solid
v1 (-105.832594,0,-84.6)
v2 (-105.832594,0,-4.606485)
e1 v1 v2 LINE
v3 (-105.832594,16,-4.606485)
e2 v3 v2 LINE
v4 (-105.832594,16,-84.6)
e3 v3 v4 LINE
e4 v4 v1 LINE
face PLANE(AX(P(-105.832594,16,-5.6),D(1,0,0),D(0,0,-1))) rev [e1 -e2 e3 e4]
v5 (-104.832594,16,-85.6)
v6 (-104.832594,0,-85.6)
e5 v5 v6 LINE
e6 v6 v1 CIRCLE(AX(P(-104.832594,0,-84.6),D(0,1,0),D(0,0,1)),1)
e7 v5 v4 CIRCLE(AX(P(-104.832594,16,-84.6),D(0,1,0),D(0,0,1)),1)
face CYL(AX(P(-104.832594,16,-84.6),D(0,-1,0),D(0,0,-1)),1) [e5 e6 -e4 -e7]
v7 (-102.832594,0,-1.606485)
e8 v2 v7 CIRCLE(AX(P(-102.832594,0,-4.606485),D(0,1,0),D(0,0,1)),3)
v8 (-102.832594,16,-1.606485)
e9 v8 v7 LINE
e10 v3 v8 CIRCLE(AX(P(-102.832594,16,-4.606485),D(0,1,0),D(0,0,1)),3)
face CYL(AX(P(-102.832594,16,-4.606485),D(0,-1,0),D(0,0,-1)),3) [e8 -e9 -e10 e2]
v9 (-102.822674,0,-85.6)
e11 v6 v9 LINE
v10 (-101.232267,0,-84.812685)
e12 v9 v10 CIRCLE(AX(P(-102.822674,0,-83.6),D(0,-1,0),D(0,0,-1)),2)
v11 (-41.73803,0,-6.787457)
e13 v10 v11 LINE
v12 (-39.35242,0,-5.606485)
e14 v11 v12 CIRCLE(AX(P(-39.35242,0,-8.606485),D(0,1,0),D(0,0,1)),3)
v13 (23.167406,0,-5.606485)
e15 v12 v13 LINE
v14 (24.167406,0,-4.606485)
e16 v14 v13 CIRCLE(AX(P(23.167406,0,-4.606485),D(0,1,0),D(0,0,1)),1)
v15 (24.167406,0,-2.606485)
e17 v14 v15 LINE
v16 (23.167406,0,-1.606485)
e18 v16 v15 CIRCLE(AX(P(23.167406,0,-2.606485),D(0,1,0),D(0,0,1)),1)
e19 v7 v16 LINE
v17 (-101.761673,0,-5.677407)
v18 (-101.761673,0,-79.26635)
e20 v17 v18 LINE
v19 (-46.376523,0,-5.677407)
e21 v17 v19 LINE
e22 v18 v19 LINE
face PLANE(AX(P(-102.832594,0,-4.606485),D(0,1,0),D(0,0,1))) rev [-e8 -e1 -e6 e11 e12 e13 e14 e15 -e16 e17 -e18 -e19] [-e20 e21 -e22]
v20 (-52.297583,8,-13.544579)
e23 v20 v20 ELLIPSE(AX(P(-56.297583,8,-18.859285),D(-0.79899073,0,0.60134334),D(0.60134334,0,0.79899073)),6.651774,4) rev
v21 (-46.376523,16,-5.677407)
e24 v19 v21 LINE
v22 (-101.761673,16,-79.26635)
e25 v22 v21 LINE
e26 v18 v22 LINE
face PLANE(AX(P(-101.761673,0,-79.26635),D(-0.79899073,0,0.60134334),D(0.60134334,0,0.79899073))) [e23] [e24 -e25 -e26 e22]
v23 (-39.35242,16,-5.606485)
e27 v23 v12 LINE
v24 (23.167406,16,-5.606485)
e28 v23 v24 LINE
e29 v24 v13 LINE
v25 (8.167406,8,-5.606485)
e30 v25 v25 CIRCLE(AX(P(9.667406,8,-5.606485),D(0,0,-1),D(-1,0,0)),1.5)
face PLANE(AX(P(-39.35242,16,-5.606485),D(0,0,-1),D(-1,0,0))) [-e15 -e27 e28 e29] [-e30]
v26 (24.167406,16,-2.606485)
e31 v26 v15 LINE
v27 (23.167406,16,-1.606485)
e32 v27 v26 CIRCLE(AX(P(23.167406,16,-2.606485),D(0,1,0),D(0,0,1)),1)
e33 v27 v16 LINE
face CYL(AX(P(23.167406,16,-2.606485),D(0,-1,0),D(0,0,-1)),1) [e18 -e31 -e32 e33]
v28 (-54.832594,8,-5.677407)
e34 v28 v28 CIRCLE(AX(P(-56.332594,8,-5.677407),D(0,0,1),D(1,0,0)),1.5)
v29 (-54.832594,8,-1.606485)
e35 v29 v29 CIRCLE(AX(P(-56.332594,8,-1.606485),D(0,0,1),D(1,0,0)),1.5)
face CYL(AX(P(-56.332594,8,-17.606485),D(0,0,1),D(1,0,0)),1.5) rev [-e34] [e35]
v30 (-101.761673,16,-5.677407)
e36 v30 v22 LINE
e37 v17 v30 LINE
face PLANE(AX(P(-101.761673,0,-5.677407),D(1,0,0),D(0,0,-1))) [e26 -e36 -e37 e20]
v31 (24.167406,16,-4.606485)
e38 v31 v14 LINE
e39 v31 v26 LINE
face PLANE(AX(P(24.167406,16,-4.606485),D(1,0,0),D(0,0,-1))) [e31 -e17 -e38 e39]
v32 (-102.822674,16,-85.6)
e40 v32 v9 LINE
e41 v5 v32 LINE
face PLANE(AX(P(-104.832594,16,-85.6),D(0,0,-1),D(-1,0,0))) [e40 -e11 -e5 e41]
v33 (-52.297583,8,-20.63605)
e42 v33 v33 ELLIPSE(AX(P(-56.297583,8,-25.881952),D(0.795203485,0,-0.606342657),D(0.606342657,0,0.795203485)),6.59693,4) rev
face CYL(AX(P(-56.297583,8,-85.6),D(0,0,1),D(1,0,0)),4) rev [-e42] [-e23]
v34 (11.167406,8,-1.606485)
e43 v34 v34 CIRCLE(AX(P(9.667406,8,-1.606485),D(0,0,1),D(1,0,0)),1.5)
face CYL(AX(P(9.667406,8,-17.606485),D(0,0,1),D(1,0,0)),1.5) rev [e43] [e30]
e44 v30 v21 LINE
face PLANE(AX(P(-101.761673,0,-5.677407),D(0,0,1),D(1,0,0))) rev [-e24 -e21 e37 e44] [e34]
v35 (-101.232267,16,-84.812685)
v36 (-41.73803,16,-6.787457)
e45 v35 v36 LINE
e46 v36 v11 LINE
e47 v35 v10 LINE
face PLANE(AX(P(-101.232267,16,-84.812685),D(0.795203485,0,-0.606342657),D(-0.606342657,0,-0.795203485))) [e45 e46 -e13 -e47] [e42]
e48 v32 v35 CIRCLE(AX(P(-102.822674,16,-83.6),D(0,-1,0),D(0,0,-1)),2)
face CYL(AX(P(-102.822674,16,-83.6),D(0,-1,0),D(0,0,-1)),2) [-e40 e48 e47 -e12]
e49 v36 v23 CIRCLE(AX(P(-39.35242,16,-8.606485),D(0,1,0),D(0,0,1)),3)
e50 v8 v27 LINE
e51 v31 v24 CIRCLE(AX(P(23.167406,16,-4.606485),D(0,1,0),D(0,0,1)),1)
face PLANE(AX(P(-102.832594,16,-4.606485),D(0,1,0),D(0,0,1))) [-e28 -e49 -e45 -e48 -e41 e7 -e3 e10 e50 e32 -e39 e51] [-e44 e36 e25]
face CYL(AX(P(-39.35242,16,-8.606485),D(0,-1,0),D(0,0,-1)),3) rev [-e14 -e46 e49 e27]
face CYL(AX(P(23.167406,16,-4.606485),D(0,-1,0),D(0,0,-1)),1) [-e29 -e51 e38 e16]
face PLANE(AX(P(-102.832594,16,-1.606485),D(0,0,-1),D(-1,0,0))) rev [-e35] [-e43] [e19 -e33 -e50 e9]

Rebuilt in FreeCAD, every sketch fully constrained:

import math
import FreeCAD as App
import Part
import Sketcher
from FreeCAD import Vector

doc = App.newDocument("Part")
body = doc.addObject("PartDesign::Body", "Body")

# Sketch on XZ plane
sketch1 = doc.addObject("Sketcher::SketchObject", "Sketch")
body.addObject(sketch1)
sketch1.AttachmentSupport = (doc.XZ_Plane, [""])
sketch1.MapMode = "FlatFace"
sketch1.addGeometry(Part.LineSegment(Vector(-41.7, -6.8, 0), Vector(-101.2, -84.8, 0)), False)
sketch1.addGeometry(Part.ArcOfCircle(Part.Circle(Vector(-102.8, -83.6, 0), Vector(0, 0, 1), 2), math.radians(-90), math.radians(-37)), False)
sketch1.addGeometry(Part.LineSegment(Vector(-102.8, -85.6, 0), Vector(-104.8, -85.6, 0)), False)
sketch1.addGeometry(Part.ArcOfCircle(Part.Circle(Vector(-104.8, -84.6, 0), Vector(0, 0, 1), 1), math.radians(-180), math.radians(-90)), False)
sketch1.addGeometry(Part.LineSegment(Vector(-105.8, -84.6, 0), Vector(-105.8, -4.6, 0)), False)
sketch1.addGeometry(Part.ArcOfCircle(Part.Circle(Vector(-102.8, -4.6, 0), Vector(0, 0, 1), 3), math.radians(90), math.radians(180)), False)
sketch1.addGeometry(Part.LineSegment(Vector(-102.8, -1.6, 0), Vector(23.2, -1.6, 0)), False)
sketch1.addGeometry(Part.ArcOfCircle(Part.Circle(Vector(23.2, -2.6, 0), Vector(0, 0, 1), 1), math.radians(0), math.radians(90)), False)
sketch1.addGeometry(Part.LineSegment(Vector(24.2, -2.6, 0), Vector(24.2, -4.6, 0)), False)
sketch1.addGeometry(Part.ArcOfCircle(Part.Circle(Vector(23.2, -4.6, 0), Vector(0, 0, 1), 1), math.radians(-90), math.radians(0)), False)
sketch1.addGeometry(Part.LineSegment(Vector(23.2, -5.6, 0), Vector(-39.4, -5.6, 0)), False)
sketch1.addGeometry(Part.ArcOfCircle(Part.Circle(Vector(-39.4, -8.6, 0), Vector(0, 0, 1), 3), math.radians(90), math.radians(143)), False)
sketch1.addConstraint(Sketcher.Constraint("Tangent", 0, 2, 1, 2))
sketch1.addConstraint(Sketcher.Constraint("Tangent", 1, 1, 2, 1))
sketch1.addConstraint(Sketcher.Constraint("Tangent", 2, 2, 3, 2))
sketch1.addConstraint(Sketcher.Constraint("Tangent", 3, 1, 4, 1))
sketch1.addConstraint(Sketcher.Constraint("Tangent", 4, 2, 5, 2))
sketch1.addConstraint(Sketcher.Constraint("Tangent", 5, 1, 6, 1))
sketch1.addConstraint(Sketcher.Constraint("Tangent", 6, 2, 7, 2))
sketch1.addConstraint(Sketcher.Constraint("Tangent", 7, 1, 8, 1))
sketch1.addConstraint(Sketcher.Constraint("Tangent", 8, 2, 9, 2))
sketch1.addConstraint(Sketcher.Constraint("Tangent", 9, 1, 10, 1))
sketch1.addConstraint(Sketcher.Constraint("Tangent", 10, 2, 11, 1))
sketch1.addConstraint(Sketcher.Constraint("Tangent", 11, 2, 0, 1))
sketch1.addConstraint(Sketcher.Constraint("Horizontal", 2))
sketch1.addConstraint(Sketcher.Constraint("Vertical", 4))
sketch1.addConstraint(Sketcher.Constraint("Horizontal", 6))
sketch1.addConstraint(Sketcher.Constraint("Vertical", 8))
sketch1.addConstraint(Sketcher.Constraint("Horizontal", 10))
sketch1.addConstraint(Sketcher.Constraint("Equal", 3, 7))
sketch1.addConstraint(Sketcher.Constraint("Equal", 7, 9))
sketch1.addConstraint(Sketcher.Constraint("Equal", 5, 11))
sketch1.addConstraint(Sketcher.Constraint("Horizontal", 5, 3, 9, 3))
sketch1.addConstraint(Sketcher.Constraint("Radius", 1, 2.0))
sketch1.addConstraint(Sketcher.Constraint("Radius", 3, 1.0))
sketch1.addConstraint(Sketcher.Constraint("Radius", 5, 3.0))
sketch1.addConstraint(Sketcher.Constraint("DistanceX", 6, 1, 6, 2, 126.0))
sketch1.addConstraint(Sketcher.Constraint("DistanceY", 1, 3, -1, 1, 83.6))
sketch1.addConstraint(Sketcher.Constraint("DistanceX", 2, 2, 2, 1, 2.00992))
sketch1.addConstraint(Sketcher.Constraint("DistanceY", 0, 2, 5, 3, 80.2062))
sketch1.addConstraint(Sketcher.Constraint("DistanceX", 10, 2, 10, 1, 62.519826))
sketch1.addConstraint(Sketcher.Constraint("DistanceX", 11, 3, -1, 1, 39.35242))
pad1 = doc.addObject("PartDesign::Pad", "Pad")
body.addObject(pad1)
pad1.Profile = sketch1
pad1.Length = 16
pad1.Reversed = True

# Sketch on XZ plane
sketch2 = doc.addObject("Sketcher::SketchObject", "Sketch001")
body.addObject(sketch2)
sketch2.AttachmentSupport = (doc.XZ_Plane, [""])
sketch2.MapMode = "FlatFace"
sketch2.AttachmentOffset = App.Placement(Vector(0, 0, -16), App.Rotation())
sketch2.addGeometry(Part.LineSegment(Vector(-102, -6, 0), Vector(-46, -6, 0)), False)
sketch2.addGeometry(Part.LineSegment(Vector(-46, -6, 0), Vector(-102, -79, 0)), False)
sketch2.addGeometry(Part.LineSegment(Vector(-102, -79, 0), Vector(-102, -6, 0)), False)
sketch2.addConstraint(Sketcher.Constraint("Coincident", 0, 2, 1, 1))
sketch2.addConstraint(Sketcher.Constraint("Coincident", 1, 2, 2, 1))
sketch2.addConstraint(Sketcher.Constraint("Coincident", 2, 2, 0, 1))
sketch2.addConstraint(Sketcher.Constraint("Horizontal", 0))
sketch2.addConstraint(Sketcher.Constraint("Vertical", 2))
sketch2.addConstraint(Sketcher.Constraint("DistanceX", 0, 1, 0, 2, 55.385149))
sketch2.addConstraint(Sketcher.Constraint("DistanceY", 2, 1, 2, 2, 73.588943))
sketch2.addConstraint(Sketcher.Constraint("DistanceY", 1, 2, -1, 1, 79.26635))
sketch2.addConstraint(Sketcher.Constraint("DistanceX", 0, 2, -1, 1, 46.376523))
pocket1 = doc.addObject("PartDesign::Pocket", "Pocket")
body.addObject(pocket1)
pocket1.Profile = sketch2
pocket1.Length = 16
pocket1.Reversed = True

# Sketch on XY plane
sketch3 = doc.addObject("Sketcher::SketchObject", "Sketch002")
body.addObject(sketch3)
sketch3.AttachmentSupport = (doc.XY_Plane, [""])
sketch3.MapMode = "FlatFace"
sketch3.AttachmentOffset = App.Placement(Vector(0, 0, -1.606485), App.Rotation())
sketch3.addGeometry(Part.Circle(Vector(9.7, 8, 0), Vector(0, 0, 1), 1.5), False)
sketch3.addGeometry(Part.Circle(Vector(-56.3, 8, 0), Vector(0, 0, 1), 1.5), False)
sketch3.addConstraint(Sketcher.Constraint("Equal", 0, 1))
sketch3.addConstraint(Sketcher.Constraint("Horizontal", 0, 3, 1, 3))
sketch3.addConstraint(Sketcher.Constraint("Diameter", 0, 3.0))
sketch3.addConstraint(Sketcher.Constraint("DistanceY", -1, 1, 0, 3, 8.0))
sketch3.addConstraint(Sketcher.Constraint("DistanceX", 1, 3, 0, 3, 66.0))
sketch3.addConstraint(Sketcher.Constraint("DistanceX", -1, 1, 0, 3, 9.667406))
pocket2 = doc.addObject("PartDesign::Pocket", "Pocket001")
body.addObject(pocket2)
pocket2.Profile = sketch3
pocket2.Length = 16

# Sketch on XY plane
sketch4 = doc.addObject("Sketcher::SketchObject", "Sketch003")
body.addObject(sketch4)
sketch4.AttachmentSupport = (doc.XY_Plane, [""])
sketch4.MapMode = "FlatFace"
sketch4.AttachmentOffset = App.Placement(Vector(0, 0, -5.677407), App.Rotation())
sketch4.addGeometry(Part.Circle(Vector(-56.3, 8, 0), Vector(0, 0, 1), 4), False)
sketch4.addConstraint(Sketcher.Constraint("Diameter", 0, 8.0))
sketch4.addConstraint(Sketcher.Constraint("DistanceY", -1, 1, 0, 3, 8.0))
sketch4.addConstraint(Sketcher.Constraint("DistanceX", 0, 3, -1, 1, 56.297583))
pocket3 = doc.addObject("PartDesign::Pocket", "Pocket002")
body.addObject(pocket3)
pocket3.Profile = sketch4
pocket3.Type = "ThroughAll"

doc.recompute()
